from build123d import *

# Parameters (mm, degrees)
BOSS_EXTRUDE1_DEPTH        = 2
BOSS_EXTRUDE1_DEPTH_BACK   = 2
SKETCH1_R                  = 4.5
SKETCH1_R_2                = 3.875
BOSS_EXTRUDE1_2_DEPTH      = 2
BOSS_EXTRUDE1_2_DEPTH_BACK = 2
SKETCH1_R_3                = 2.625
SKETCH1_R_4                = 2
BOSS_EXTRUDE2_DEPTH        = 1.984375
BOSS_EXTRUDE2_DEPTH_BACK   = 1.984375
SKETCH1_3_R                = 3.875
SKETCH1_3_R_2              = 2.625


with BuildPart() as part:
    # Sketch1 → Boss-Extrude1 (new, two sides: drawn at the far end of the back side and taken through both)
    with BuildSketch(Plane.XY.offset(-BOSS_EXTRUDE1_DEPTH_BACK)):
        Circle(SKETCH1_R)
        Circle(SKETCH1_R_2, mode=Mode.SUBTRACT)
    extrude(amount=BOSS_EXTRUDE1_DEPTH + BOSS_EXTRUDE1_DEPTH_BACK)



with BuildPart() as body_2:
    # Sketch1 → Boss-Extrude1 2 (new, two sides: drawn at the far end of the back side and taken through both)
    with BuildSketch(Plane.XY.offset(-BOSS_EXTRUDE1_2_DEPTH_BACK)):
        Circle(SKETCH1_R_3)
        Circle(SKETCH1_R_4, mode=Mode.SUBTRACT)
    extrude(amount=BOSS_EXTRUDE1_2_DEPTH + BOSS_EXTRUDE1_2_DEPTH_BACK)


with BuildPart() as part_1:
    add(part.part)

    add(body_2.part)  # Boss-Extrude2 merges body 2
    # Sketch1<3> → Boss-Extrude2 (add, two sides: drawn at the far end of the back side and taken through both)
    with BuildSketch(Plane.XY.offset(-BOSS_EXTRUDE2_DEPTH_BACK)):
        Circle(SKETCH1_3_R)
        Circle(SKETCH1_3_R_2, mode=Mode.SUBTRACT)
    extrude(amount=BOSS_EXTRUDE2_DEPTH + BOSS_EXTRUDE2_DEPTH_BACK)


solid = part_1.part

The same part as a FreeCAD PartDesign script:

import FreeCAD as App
import Part
import Sketcher

V = App.Vector
Q = App.Units.Quantity

doc = App.newDocument("Part")
body = doc.addObject("PartDesign::Body", "Body")

# Sketch on XY plane
sketch1 = doc.addObject("Sketcher::SketchObject", "Sketch")
body.addObject(sketch1)
sketch1.AttachmentSupport = (doc.XY_Plane, [""])
sketch1.MapMode = "FlatFace"
sketch1.addGeometry(Part.Circle(V(0, 0, 0), V(0, 0, 1), 4.5), False)
sketch1.addGeometry(Part.Circle(V(0, 0, 0), V(0, 0, 1), 3.875), False)
sketch1.addConstraint(Sketcher.Constraint("Coincident", 0, 3, -1, 1))
sketch1.addConstraint(Sketcher.Constraint("Coincident", 1, 3, -1, 1))
sketch1.addConstraint(Sketcher.Constraint("Diameter", 0, Q("9 mm")))
sketch1.addConstraint(Sketcher.Constraint("Diameter", 1, Q("7.75 mm")))
pad1 = doc.addObject("PartDesign::Pad", "Pad")
body.addObject(pad1)
pad1.Profile = sketch1
pad1.Type = "TwoLengths"
pad1.Length = 2
pad1.Length2 = 2
body2 = doc.addObject("PartDesign::Body", "Body001")

# Sketch on XY plane
sketch2 = doc.addObject("Sketcher::SketchObject", "Sketch001")
body2.addObject(sketch2)
sketch2.AttachmentSupport = (doc.getObject("XY_Plane001"), [""])
sketch2.MapMode = "FlatFace"
sketch2.addGeometry(Part.Circle(V(0, 0, 0), V(0, 0, 1), 2.625), False)
sketch2.addGeometry(Part.Circle(V(0, 0, 0), V(0, 0, 1), 2), False)
sketch2.addConstraint(Sketcher.Constraint("Coincident", 0, 3, -1, 1))
sketch2.addConstraint(Sketcher.Constraint("Coincident", 1, 3, -1, 1))
sketch2.addConstraint(Sketcher.Constraint("Diameter", 1, Q("4 mm")))
sketch2.addConstraint(Sketcher.Constraint("Diameter", 0, Q("5.25 mm")))
pad2 = doc.addObject("PartDesign::Pad", "Pad001")
body2.addObject(pad2)
pad2.Profile = sketch2
pad2.Type = "TwoLengths"
pad2.Length = 2
pad2.Length2 = 2
body.AllowCompound = True
doc.recompute()

boolean = doc.addObject("PartDesign::Boolean", "Boolean")
body.addObject(boolean)
boolean.Type = "Fuse"
boolean.addObjects([body2])

# Sketch on XY plane
sketch3 = doc.addObject("Sketcher::SketchObject", "Sketch002")
body.addObject(sketch3)
sketch3.AttachmentSupport = (doc.XY_Plane, [""])
sketch3.MapMode = "FlatFace"
sketch3.addGeometry(Part.Circle(V(0, 0, 0), V(0, 0, 1), 3.875), False)
sketch3.addGeometry(Part.Circle(V(0, 0, 0), V(0, 0, 1), 2.625), False)
sketch3.addConstraint(Sketcher.Constraint("Coincident", 0, 3, -1, 1))
sketch3.addConstraint(Sketcher.Constraint("Coincident", 1, 3, -1, 1))
sketch3.addConstraint(Sketcher.Constraint("Diameter", 0, Q("7.75 mm")))
sketch3.addConstraint(Sketcher.Constraint("Diameter", 1, Q("5.25 mm")))
pad3 = doc.addObject("PartDesign::Pad", "Pad002")
body.addObject(pad3)
pad3.Profile = sketch3
pad3.Type = "TwoLengths"
pad3.Length = 1.984375
pad3.Length2 = 1.984375

doc.recompute()
